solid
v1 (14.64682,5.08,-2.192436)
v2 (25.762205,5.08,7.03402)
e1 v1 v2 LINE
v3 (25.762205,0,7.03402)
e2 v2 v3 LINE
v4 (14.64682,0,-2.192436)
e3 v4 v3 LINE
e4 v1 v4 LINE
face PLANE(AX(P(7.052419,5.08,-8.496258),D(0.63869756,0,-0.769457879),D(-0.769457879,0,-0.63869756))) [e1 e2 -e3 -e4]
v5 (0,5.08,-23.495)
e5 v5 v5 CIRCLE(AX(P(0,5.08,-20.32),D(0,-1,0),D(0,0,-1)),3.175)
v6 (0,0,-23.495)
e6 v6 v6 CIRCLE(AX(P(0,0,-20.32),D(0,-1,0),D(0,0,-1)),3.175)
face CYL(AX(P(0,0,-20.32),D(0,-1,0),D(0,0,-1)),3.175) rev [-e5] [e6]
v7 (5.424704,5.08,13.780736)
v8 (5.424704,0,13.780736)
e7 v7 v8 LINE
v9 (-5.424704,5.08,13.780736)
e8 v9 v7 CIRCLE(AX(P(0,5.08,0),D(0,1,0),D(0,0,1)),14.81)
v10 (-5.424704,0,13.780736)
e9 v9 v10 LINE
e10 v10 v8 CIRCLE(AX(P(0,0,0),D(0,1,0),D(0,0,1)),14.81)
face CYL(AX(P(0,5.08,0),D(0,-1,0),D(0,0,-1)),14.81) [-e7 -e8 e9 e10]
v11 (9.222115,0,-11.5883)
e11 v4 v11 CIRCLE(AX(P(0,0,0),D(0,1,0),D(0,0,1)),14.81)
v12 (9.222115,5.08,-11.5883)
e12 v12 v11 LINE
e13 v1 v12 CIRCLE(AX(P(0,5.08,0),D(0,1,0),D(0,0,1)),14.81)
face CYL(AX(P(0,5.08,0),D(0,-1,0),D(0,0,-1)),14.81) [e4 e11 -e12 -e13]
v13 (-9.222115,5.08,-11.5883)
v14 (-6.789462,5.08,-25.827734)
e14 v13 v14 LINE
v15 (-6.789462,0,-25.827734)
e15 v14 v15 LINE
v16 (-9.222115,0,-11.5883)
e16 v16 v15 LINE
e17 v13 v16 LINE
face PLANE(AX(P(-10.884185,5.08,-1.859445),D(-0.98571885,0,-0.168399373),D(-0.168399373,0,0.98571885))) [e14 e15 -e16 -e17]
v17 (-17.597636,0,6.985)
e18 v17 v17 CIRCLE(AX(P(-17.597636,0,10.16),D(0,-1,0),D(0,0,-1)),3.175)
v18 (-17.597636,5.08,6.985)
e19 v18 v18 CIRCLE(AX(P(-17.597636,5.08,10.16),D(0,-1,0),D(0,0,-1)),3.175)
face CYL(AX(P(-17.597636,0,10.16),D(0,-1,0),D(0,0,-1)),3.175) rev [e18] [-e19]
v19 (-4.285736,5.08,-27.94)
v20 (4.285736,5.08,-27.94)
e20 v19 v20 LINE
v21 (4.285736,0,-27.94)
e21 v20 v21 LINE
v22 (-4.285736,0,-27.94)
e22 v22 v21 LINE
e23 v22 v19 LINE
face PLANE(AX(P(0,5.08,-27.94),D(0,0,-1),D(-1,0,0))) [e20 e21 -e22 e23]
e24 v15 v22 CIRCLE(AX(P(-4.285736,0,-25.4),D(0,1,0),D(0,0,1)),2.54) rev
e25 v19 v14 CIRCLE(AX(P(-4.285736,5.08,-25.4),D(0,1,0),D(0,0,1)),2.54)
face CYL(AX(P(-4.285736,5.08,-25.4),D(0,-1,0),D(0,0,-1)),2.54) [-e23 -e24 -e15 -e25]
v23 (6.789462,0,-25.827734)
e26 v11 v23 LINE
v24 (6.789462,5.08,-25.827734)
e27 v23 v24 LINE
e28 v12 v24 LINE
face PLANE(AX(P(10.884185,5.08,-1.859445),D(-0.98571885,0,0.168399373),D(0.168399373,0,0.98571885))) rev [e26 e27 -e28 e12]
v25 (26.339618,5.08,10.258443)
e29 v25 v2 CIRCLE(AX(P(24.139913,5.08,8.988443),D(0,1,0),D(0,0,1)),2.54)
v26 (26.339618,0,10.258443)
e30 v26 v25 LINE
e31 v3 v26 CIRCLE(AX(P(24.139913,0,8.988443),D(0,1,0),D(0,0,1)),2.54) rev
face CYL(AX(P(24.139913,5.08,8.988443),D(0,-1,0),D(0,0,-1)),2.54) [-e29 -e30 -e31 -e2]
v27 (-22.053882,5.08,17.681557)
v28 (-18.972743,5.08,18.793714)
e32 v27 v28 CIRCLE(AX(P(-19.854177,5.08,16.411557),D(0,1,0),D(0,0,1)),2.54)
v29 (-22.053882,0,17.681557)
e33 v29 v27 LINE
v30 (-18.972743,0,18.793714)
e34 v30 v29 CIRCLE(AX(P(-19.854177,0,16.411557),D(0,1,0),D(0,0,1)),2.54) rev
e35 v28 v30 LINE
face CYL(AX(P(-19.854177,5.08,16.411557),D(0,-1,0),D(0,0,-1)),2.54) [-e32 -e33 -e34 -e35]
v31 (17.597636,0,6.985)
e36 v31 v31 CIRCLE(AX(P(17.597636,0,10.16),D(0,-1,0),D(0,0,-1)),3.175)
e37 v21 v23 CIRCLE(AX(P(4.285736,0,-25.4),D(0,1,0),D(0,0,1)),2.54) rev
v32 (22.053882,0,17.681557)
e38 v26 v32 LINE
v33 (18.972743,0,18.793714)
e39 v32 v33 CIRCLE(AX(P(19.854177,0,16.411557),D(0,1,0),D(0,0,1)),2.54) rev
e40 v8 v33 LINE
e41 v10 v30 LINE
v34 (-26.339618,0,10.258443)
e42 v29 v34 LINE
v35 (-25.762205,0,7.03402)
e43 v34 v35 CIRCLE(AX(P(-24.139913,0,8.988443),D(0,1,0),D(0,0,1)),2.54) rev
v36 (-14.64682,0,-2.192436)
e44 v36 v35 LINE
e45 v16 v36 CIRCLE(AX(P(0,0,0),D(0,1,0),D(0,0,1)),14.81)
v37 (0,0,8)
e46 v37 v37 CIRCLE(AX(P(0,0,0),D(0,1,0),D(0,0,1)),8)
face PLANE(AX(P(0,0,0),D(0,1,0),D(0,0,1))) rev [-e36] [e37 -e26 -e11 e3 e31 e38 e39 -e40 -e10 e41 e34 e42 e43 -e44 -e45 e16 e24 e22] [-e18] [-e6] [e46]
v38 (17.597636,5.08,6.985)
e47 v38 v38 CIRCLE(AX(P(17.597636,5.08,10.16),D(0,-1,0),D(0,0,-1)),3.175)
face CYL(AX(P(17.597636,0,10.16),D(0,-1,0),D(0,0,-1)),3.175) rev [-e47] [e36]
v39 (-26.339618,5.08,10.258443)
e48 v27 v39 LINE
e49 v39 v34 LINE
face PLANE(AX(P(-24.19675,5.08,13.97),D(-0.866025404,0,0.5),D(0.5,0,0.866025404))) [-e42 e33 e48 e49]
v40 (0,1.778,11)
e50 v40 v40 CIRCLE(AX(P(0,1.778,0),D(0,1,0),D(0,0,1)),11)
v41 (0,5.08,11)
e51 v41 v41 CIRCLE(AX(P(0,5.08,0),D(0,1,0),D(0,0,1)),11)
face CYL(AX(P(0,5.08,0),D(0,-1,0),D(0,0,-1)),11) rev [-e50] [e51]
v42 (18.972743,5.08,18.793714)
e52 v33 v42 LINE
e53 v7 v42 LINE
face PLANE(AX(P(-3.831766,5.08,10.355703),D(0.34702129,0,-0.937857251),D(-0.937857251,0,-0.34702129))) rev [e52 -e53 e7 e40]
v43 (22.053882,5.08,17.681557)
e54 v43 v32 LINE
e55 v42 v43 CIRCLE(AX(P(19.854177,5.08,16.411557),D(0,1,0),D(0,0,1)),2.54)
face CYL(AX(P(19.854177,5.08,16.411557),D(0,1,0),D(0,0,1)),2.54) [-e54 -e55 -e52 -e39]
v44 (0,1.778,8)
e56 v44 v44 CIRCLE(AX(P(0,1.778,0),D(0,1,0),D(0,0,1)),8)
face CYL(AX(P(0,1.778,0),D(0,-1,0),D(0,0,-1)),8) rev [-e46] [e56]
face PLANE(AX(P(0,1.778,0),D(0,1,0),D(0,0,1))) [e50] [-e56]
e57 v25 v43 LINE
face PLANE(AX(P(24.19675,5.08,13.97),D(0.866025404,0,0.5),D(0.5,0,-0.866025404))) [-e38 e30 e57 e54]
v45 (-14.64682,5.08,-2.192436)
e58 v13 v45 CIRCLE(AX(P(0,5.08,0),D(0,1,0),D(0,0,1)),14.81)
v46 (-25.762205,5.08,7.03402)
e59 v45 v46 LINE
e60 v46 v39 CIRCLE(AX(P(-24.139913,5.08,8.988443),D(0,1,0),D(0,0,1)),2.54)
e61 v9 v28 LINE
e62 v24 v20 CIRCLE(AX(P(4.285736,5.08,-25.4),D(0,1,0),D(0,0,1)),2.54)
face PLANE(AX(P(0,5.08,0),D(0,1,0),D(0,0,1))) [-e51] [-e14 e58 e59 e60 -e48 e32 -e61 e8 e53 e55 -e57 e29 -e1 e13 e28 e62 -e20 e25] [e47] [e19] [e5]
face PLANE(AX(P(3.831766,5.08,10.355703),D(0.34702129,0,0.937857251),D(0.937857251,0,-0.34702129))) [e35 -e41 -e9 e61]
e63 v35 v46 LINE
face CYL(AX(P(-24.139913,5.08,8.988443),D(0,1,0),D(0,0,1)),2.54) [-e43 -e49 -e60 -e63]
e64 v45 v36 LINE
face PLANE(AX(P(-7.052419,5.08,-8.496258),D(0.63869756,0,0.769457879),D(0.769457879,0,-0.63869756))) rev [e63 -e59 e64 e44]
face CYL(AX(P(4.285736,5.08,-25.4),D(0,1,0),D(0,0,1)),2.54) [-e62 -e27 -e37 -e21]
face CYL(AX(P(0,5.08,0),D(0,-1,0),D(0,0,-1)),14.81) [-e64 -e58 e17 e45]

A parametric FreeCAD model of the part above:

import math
import FreeCAD as App
import Part
import Sketcher
Q = App.Units.Quantity


def edges_at(feature, points):
    """Names of the edges that pass closest to the given points."""
    edges = feature.Shape.Edges
    near = lambda p: min(range(len(edges)), key=lambda i: edges[i].distToShape(Part.Vertex(*p))[0])
    return sorted({f"Edge{near(p) + 1}" for p in points})

doc = App.newDocument("Part")
body = doc.addObject("PartDesign::Body", "Body")

sketch1 = body.newObject("Sketcher::SketchObject", "Sketch")
sketch1.AttachmentSupport = (doc.getObject("XZ_Plane"), [""])
sketch1.MapMode = "FlatFace"
sketch1.addGeometry([
    Part.LineSegment(App.Vector(-6.428605, -27.94, 0), App.Vector(-9.222115, -11.5883, 0)),
    Part.ArcOfCircle(Part.Circle(App.Vector(0, 0, 0), App.Vector(0, 0, 1), 14.81), math.radians(-51.486783), math.radians(231.486783)),
    Part.LineSegment(App.Vector(9.222115, -11.5883, 0), App.Vector(6.428605, -27.94, 0)),
    Part.LineSegment(App.Vector(6.428605, -27.94, 0), App.Vector(-6.428605, -27.94, 0)),
    Part.Circle(App.Vector(0, 0, 0), App.Vector(0, 0, 1), 11),
], False)
sketch1.addConstraint([
    Sketcher.Constraint("Coincident", 0, 2, 1, 2),
    Sketcher.Constraint("Coincident", 1, 1, 2, 1),
    Sketcher.Constraint("Coincident", 2, 2, 3, 1),
    Sketcher.Constraint("Coincident", 3, 2, 0, 1),
    Sketcher.Constraint("Horizontal", 3),
    Sketcher.Constraint("Coincident", 1, 3, -1, 1),
    Sketcher.Constraint("Coincident", 4, 3, -1, 1),
    Sketcher.Constraint("Horizontal", 0, 2, 1, 1),
    Sketcher.Constraint("Equal", 0, 2),
    Sketcher.Constraint("DistanceY", 2, 2, -1, 1, Q("1.1 in")),
    Sketcher.Constraint("Diameter", 4, 22.0),
    Sketcher.Constraint("Radius", 1, 14.81),
    Sketcher.Constraint("DistanceX", 3, 2, 3, 1, 12.857209),
    Sketcher.Constraint("DistanceY", 0, 2, -1, 1, 11.5883),
])
pad1 = body.newObject("PartDesign::Pad", "Pad")
pad1.Profile = sketch1
pad1.Length = Q("0.2 in")
pad1.Reversed = True

sketch2 = body.newObject("Sketcher::SketchObject", "Sketch001")
sketch2.AttachmentSupport = (doc.getObject("XZ_Plane"), [""])
sketch2.MapMode = "FlatFace"
sketch2.addGeometry([
    Part.Circle(App.Vector(0, 0, 0), App.Vector(0, 0, 1), 11),
    Part.Circle(App.Vector(0, 0, 0), App.Vector(0, 0, 1), 8),
], False)
sketch2.addConstraint([
    Sketcher.Constraint("Coincident", 0, 3, -1, 1),
    Sketcher.Constraint("Coincident", 1, 3, -1, 1),
    Sketcher.Constraint("Diameter", 0, 22.0),
    Sketcher.Constraint("Diameter", 1, 16.0),
])
pad2 = body.newObject("PartDesign::Pad", "Pad001")
pad2.Profile = sketch2
pad2.Length = Q("0.07 in")
pad2.Reversed = True

sketch3 = body.newObject("Sketcher::SketchObject", "Sketch002")
sketch3.AttachmentSupport = (doc.getObject("XZ_Plane"), [""])
sketch3.MapMode = "FlatFace"
sketch3.addGeometry(Part.Circle(App.Vector(0, -20.32, 0), App.Vector(0, 0, 1), 3.175), False)
sketch3.addConstraint([
    Sketcher.Constraint("PointOnObject", 0, 3, -2),
    Sketcher.Constraint("Diameter", 0, Q("0.25 in")),
    Sketcher.Constraint("DistanceY", 0, 3, -1, 1, Q("0.8 in")),
])
doc.recompute()
hole = body.newObject("PartDesign::Hole", "Hole")
hole.Profile = sketch3
hole.ThreadType = "None"
hole.Diameter = Q("0.25 in")
hole.DepthType = "ThroughAll"
doc.recompute()

fillet = body.newObject("PartDesign::Fillet", "Fillet")
fillet.Base = (hole, edges_at(hole, [(-6.429, 2.54, -27.94), (6.429, 2.54, -27.94)]))
fillet.Radius = Q("0.1 in")
body2 = doc.addObject("PartDesign::Body", "Body001")
doc.recompute()

body2.BaseFeature = body
doc.recompute()

body3 = doc.addObject("PartDesign::Body", "Body002")
body3.BaseFeature = body
body3.Placement = App.Placement(App.Vector(0, 0, 0), App.Rotation(App.Vector(0, 1, 0), 120))
boolean = body2.newObject("PartDesign::Boolean", "Boolean")
boolean.Type = "Fuse"
boolean.addObjects([body3])
doc.recompute()

body.Placement = App.Placement(App.Vector(0, 0, 0), App.Rotation(App.Vector(0, 1, 0), 240))
boolean2 = body2.newObject("PartDesign::Boolean", "Boolean001")
boolean2.Type = "Fuse"
boolean2.addObjects([body])

doc.recompute()
